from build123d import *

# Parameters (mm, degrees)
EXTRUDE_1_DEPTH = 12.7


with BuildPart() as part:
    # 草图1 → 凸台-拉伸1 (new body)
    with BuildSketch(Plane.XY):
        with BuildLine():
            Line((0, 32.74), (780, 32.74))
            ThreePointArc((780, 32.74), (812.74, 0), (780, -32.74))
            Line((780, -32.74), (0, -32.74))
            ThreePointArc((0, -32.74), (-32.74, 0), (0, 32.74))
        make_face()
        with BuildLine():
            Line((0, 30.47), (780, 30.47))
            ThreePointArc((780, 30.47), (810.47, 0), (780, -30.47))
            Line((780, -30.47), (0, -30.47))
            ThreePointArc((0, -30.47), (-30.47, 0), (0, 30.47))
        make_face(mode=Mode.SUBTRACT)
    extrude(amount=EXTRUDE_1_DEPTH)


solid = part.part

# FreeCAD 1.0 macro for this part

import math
import FreeCAD as App
import Part
import Sketcher

V = App.Vector

doc = App.newDocument("Part")
body = doc.addObject("PartDesign::Body", "Body")

# Sketch on XY plane
sketch1 = body.newObject("Sketcher::SketchObject", "Sketch")
sketch1.AttachmentSupport = (doc.getObject("XY_Plane"), [""])
sketch1.MapMode = "FlatFace"
sketch1.addGeometry([
    Part.LineSegment(V(780, 33, 0), V(0, 33, 0)),  # 0
    Part.ArcOfCircle(Part.Circle(V(0, 0, 0), V(0, 0, 1), 33), math.radians(90), math.radians(270)),  # 1
    Part.LineSegment(V(0, -33, 0), V(780, -33, 0)),  # 2
    Part.ArcOfCircle(Part.Circle(V(780, 0, 0), V(0, 0, 1), 33), math.radians(-90), math.radians(90)),  # 3
    Part.LineSegment(V(0, 30, 0), V(780, 30, 0)),  # 4
    Part.ArcOfCircle(Part.Circle(V(780, 0, 0), V(0, 0, 1), 30), math.radians(-90), math.radians(90)),  # 5
    Part.LineSegment(V(780, -30, 0), V(0, -30, 0)),  # 6
    Part.ArcOfCircle(Part.Circle(V(0, 0, 0), V(0, 0, 1), 30), math.radians(90), math.radians(270)),  # 7
], False)
sketch1.addConstraint([
    Sketcher.Constraint("Tangent", 0, 2, 1, 1),
    Sketcher.Constraint("Tangent", 1, 2, 2, 1),
    Sketcher.Constraint("Tangent", 2, 2, 3, 1),
    Sketcher.Constraint("Tangent", 3, 2, 0, 1),
    Sketcher.Constraint("Tangent", 4, 2, 5, 2),
    Sketcher.Constraint("Tangent", 5, 1, 6, 1),
    Sketcher.Constraint("Tangent", 6, 2, 7, 2),
    Sketcher.Constraint("Tangent", 7, 1, 4, 1),
    Sketcher.Constraint("Horizontal", 0),
    Sketcher.Constraint("Horizontal", 2),
    Sketcher.Constraint("Horizontal", 4),
    Sketcher.Constraint("Horizontal", 6),
    Sketcher.Constraint("Coincident", 1, 3, -1, 1),
    Sketcher.Constraint("Coincident", 7, 3, -1, 1),
    Sketcher.Constraint("Vertical", 5, 3, 2, 2),
    Sketcher.Constraint("DistanceX", 0, 2, 0, 1, 780.0),
    Sketcher.Constraint("Radius", 1, 32.74),
    Sketcher.Constraint("Radius", 5, 30.47),
])
pad1 = body.newObject("PartDesign::Pad", "Pad")
pad1.Profile = sketch1
pad1.Length = 12.7

doc.recompute()
